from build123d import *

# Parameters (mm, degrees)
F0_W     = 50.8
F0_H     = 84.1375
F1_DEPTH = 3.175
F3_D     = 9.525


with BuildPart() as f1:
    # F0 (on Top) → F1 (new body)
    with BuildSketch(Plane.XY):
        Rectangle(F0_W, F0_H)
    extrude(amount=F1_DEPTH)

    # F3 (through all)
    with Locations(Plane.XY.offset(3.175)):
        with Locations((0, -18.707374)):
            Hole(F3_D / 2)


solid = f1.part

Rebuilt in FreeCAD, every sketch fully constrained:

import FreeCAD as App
import Part
import Sketcher
from FreeCAD import Vector
Q = App.Units.Quantity


def add_polygon(sketch, points):
    """Adds a closed chain of lines whose ends are joined by coincident constraints."""
    first, n = sketch.GeometryCount, len(points)
    for a, b in zip(points, points[1:] + points[:1]):
        sketch.addGeometry(Part.LineSegment(App.Vector(*a, 0), App.Vector(*b, 0)), False)
    for i in range(n):
        sketch.addConstraint(Sketcher.Constraint("Coincident", first + i, 2, first + (i + 1) % n, 1))

doc = App.newDocument("Part")
body = doc.addObject("PartDesign::Body", "Body")

sketch1 = doc.addObject("Sketcher::SketchObject", "Sketch")
body.addObject(sketch1)
sketch1.AttachmentSupport = (doc.XY_Plane, [""])
sketch1.MapMode = "FlatFace"
add_polygon(sketch1, [(-25, 42), (-25, -42), (25, -42), (25, 42)])
sketch1.addConstraint(Sketcher.Constraint("Vertical", 0))
sketch1.addConstraint(Sketcher.Constraint("Horizontal", 1))
sketch1.addConstraint(Sketcher.Constraint("Vertical", 2))
sketch1.addConstraint(Sketcher.Constraint("Horizontal", 3))
sketch1.addConstraint(Sketcher.Constraint("Symmetric", 0, 2, 2, 2, -1, 1))
sketch1.addConstraint(Sketcher.Constraint("DistanceX", 1, 1, 1, 2, Q("2 in")))
sketch1.addConstraint(Sketcher.Constraint("DistanceY", 0, 2, 0, 1, Q("3.3125 in")))
pad1 = doc.addObject("PartDesign::Pad", "Pad")
body.addObject(pad1)
pad1.Profile = sketch1
pad1.Length = Q("0.125 in")

sketch2 = doc.addObject("Sketcher::SketchObject", "Sketch001")
body.addObject(sketch2)
sketch2.AttachmentSupport = (doc.XY_Plane, [""])
sketch2.MapMode = "FlatFace"
sketch2.AttachmentOffset = App.Placement(Vector(0, 0, 0.125 * 25.4), App.Rotation())
sketch2.addGeometry(Part.Circle(Vector(0, -18.7, 0), Vector(0, 0, 1), 4.8), False)
sketch2.addConstraint(Sketcher.Constraint("PointOnObject", 0, 3, -2))
sketch2.addConstraint(Sketcher.Constraint("Diameter", 0, Q("0.375 in")))
sketch2.addConstraint(Sketcher.Constraint("DistanceY", 0, 3, -1, 1, Q("18.707374 mm")))
doc.recompute()
hole = doc.addObject("PartDesign::Hole", "Hole")
body.addObject(hole)
hole.Profile = sketch2
hole.ThreadType = "None"
hole.Diameter = Q("0.375 in")
hole.DepthType = "ThroughAll"

doc.recompute()
